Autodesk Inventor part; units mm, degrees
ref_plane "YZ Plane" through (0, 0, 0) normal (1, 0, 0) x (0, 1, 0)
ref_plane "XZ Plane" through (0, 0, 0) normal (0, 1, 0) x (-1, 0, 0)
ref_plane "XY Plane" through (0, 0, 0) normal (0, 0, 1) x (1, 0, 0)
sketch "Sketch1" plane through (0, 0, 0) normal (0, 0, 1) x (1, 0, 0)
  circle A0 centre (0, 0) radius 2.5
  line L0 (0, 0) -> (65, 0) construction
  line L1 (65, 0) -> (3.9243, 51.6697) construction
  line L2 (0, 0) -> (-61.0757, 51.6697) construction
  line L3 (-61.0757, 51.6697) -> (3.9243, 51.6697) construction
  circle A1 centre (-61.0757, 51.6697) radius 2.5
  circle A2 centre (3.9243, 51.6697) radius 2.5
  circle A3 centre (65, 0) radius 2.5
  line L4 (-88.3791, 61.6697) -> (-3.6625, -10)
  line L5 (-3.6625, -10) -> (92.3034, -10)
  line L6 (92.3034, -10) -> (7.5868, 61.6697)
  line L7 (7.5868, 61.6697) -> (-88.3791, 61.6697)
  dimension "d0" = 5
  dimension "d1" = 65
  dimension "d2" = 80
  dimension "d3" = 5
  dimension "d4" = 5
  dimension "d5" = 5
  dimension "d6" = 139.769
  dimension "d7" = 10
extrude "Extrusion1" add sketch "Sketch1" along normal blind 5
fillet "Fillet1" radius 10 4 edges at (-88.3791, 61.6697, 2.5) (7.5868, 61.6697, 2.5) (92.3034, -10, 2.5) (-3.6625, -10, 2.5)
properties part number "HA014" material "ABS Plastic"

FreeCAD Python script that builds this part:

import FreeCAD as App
import Part
import Sketcher

V = App.Vector
Q = App.Units.Quantity


def edges_at(feature, points):
    """Names of the edges that pass closest to the given points."""
    edges = feature.Shape.Edges
    near = lambda p: min(range(len(edges)), key=lambda i: edges[i].distToShape(Part.Vertex(*p))[0])
    return sorted({f"Edge{near(p) + 1}" for p in points})


def add_polygon(sketch, points):
    """Adds a closed chain of lines whose ends are joined by coincident constraints."""
    first, n = sketch.GeometryCount, len(points)
    for a, b in zip(points, points[1:] + points[:1]):
        sketch.addGeometry(Part.LineSegment(App.Vector(*a, 0), App.Vector(*b, 0)), False)
    for i in range(n):
        sketch.addConstraint(Sketcher.Constraint("Coincident", first + i, 2, first + (i + 1) % n, 1))

doc = App.newDocument("Part")
body = doc.addObject("PartDesign::Body", "Body")

# Sketch on XY plane
sketch1 = body.newObject("Sketcher::SketchObject", "Sketch")
sketch1.AttachmentSupport = (doc.getObject("XY_Plane"), [""])
sketch1.MapMode = "FlatFace"
add_polygon(sketch1, [(7.6, 61.7), (-88.4, 61.7), (-3.7, -10), (92.3, -10)])  # lines 0-3
sketch1.addGeometry(Part.Circle(V(0, 0, 0), V(0, 0, 1), 2.5), False)  # 4
sketch1.addGeometry(Part.Circle(V(65, 0, 0), V(0, 0, 1), 2.5), False)  # 5
sketch1.addGeometry(Part.Circle(V(-61.1, 51.7, 0), V(0, 0, 1), 2.5), False)  # 6
sketch1.addGeometry(Part.Circle(V(3.9, 51.7, 0), V(0, 0, 1), 2.5), False)  # 7
sketch1.addConstraint([
    Sketcher.Constraint("Horizontal", 0),
    Sketcher.Constraint("Horizontal", 2),
    Sketcher.Constraint("Coincident", 4, 3, -1, 1),
    Sketcher.Constraint("Equal", 4, 5),
    Sketcher.Constraint("Equal", 5, 6),
    Sketcher.Constraint("Equal", 6, 7),
    Sketcher.Constraint("PointOnObject", 5, 3, -1),
    Sketcher.Constraint("Parallel", 1, 3),
    Sketcher.Constraint("Horizontal", 6, 3, 7, 3),
    Sketcher.Constraint("Diameter", 4, 5.0),
    Sketcher.Constraint("DistanceX", -1, 1, 5, 3, 65.0),
    Sketcher.Constraint("DistanceY", 1, 2, -1, 1, 10.0),
    Sketcher.Constraint("DistanceX", 6, 3, 7, 3, 65.0),
    Sketcher.Constraint("DistanceY", 6, 3, 0, 2, 10.0),
    Sketcher.Constraint("Angle", 3, Q("139.769 deg")),
    Sketcher.Constraint("DistanceX", 0, 2, 0, 1, 95.966),
    Sketcher.Constraint("Distance", 1, 110.966),
    Sketcher.Constraint("DistanceX", 0, 2, -1, 1, 88.379),
    Sketcher.Constraint("DistanceX", 7, 3, 2, 2, 88.379),
])
pad1 = body.newObject("PartDesign::Pad", "Pad")
pad1.Profile = sketch1
pad1.Length = 5
doc.recompute()

fillet = body.newObject("PartDesign::Fillet", "Fillet")
fillet.Base = (pad1, edges_at(pad1, [
    (-88.379, 61.67, 2.5),
    (7.587, 61.67, 2.5),
    (92.303, -10, 2.5),
    (-3.663, -10, 2.5),
]))
fillet.Radius = 10

doc.recompute()
